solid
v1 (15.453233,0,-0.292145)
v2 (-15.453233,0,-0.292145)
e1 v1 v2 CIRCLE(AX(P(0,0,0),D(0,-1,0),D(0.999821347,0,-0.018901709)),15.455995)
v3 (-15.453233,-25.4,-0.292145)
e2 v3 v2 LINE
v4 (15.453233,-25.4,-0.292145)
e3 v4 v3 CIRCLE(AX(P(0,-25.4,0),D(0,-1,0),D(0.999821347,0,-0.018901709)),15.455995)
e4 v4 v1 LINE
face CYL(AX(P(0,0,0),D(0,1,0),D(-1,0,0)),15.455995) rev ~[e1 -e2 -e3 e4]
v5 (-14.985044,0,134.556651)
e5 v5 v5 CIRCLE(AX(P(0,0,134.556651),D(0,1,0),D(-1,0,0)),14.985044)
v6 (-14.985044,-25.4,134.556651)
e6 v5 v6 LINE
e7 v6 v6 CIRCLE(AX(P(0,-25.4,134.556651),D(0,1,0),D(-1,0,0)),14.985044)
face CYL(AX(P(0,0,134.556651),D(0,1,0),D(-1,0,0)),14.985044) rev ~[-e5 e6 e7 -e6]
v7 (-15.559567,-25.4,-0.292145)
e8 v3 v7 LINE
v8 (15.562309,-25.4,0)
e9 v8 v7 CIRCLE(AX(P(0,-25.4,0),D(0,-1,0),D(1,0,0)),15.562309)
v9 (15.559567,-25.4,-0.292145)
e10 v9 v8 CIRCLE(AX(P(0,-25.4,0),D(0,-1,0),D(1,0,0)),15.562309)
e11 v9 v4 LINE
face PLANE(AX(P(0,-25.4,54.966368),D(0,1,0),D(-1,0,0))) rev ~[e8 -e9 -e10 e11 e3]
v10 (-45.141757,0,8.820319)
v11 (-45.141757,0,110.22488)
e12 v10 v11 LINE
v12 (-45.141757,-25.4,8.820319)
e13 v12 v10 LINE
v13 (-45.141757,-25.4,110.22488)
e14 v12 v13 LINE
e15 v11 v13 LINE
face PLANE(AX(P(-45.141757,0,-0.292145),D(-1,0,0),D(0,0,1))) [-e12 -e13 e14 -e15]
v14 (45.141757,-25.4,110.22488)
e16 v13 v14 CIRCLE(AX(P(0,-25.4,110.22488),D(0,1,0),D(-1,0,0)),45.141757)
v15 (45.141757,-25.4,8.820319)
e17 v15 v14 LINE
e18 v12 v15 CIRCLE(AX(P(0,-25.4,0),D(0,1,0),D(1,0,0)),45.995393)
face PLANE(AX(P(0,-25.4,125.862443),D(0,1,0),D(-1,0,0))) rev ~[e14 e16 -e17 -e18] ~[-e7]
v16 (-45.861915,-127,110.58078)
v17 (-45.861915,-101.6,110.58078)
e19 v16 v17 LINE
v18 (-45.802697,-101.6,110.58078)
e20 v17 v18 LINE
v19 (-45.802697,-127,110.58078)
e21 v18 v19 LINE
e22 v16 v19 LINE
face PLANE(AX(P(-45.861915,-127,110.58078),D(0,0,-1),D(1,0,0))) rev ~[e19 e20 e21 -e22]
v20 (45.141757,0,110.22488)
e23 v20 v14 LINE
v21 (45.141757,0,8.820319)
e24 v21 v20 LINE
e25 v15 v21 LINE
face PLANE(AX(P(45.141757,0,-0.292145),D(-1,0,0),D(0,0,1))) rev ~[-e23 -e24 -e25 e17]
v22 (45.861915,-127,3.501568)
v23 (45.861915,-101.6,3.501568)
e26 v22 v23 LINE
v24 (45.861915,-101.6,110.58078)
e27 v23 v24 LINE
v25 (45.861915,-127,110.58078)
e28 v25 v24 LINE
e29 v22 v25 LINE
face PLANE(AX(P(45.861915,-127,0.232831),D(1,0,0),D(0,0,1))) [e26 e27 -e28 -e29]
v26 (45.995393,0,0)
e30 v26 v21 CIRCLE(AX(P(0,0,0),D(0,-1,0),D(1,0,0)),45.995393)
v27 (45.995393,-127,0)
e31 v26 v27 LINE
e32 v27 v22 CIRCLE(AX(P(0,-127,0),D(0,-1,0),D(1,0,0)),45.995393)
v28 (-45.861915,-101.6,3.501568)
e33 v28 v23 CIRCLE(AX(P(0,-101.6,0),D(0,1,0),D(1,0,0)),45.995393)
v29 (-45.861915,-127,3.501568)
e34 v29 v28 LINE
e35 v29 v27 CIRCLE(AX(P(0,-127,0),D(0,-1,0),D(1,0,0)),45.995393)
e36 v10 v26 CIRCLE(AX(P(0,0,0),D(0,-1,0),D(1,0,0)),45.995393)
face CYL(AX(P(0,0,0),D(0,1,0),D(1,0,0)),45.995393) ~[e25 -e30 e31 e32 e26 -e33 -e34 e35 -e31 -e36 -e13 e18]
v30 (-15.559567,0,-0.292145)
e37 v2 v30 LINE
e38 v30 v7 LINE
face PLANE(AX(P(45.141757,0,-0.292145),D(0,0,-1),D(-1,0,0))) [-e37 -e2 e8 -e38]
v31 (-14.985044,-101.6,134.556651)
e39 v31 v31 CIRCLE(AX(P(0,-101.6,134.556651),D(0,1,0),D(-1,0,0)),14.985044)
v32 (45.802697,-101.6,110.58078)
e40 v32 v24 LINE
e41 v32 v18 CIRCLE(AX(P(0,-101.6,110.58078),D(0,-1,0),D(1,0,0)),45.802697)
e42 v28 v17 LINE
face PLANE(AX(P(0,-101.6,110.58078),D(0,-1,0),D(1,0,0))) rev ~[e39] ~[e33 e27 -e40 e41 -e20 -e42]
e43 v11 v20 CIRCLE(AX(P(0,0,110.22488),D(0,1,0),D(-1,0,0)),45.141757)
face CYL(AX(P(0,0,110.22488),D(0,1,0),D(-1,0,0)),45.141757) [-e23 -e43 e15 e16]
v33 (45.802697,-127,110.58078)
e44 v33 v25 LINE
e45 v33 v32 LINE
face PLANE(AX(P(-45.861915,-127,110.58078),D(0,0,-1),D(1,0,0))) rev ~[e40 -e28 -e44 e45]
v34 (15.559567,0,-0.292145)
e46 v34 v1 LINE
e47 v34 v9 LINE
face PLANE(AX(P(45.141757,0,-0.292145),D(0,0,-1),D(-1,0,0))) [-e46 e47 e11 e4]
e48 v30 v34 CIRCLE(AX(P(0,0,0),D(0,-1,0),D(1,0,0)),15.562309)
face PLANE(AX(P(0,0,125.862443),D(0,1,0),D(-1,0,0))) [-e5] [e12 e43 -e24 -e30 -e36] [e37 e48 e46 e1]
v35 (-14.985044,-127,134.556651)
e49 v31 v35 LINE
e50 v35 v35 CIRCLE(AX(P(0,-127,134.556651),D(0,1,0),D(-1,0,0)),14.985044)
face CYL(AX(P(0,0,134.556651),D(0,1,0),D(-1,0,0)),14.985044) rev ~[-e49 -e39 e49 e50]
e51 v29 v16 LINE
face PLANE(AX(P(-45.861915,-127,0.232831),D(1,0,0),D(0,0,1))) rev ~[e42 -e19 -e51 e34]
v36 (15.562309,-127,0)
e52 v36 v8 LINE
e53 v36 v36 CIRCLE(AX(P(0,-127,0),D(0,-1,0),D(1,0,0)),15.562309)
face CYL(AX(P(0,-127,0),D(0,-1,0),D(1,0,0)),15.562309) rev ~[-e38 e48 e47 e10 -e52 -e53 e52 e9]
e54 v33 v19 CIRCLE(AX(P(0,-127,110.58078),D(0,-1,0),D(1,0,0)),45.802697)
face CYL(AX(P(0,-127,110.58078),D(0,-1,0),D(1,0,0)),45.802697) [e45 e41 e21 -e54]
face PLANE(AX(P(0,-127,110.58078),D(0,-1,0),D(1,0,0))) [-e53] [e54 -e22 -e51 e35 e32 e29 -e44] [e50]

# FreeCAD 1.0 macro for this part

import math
import FreeCAD as App
import Part
import Sketcher


def add_polygon(sketch, points):
    """Adds a closed chain of lines whose ends are joined by coincident constraints."""
    first, n = sketch.GeometryCount, len(points)
    for a, b in zip(points, points[1:] + points[:1]):
        sketch.addGeometry(Part.LineSegment(App.Vector(*a, 0), App.Vector(*b, 0)), False)
    for i in range(n):
        sketch.addConstraint(Sketcher.Constraint("Coincident", first + i, 2, first + (i + 1) % n, 1))

doc = App.newDocument("Part")
params = doc.addObject("Spreadsheet::Sheet", "Params")
for row, (alias, value) in enumerate([
    ("pad1_length", "5 in"),
    ("pocket1_length", "5 in"),
    ("pad2_length", "1 in"),
    ("pocket2_length", "5 in"),
    ("pad3_length", "1 in"),
    ("pad4_length", "1 in"),
    ("pocket3_length", "5 in"),
    ("pad5_length", "1 in"),
    ("pocket4_length", "5 in"),
], start=1):
    params.set(f"A{row}", alias)
    params.set(f"B{row}", "=" + value)
    params.setAlias(f"B{row}", alias)

body = doc.addObject("PartDesign::Body", "Body")

sketch1 = doc.addObject("Sketcher::SketchObject", "Sketch")
body.addObject(sketch1)
sketch1.AttachmentSupport = (doc.XZ_Plane, [""])
sketch1.MapMode = "FlatFace"
sketch1.addGeometry(Part.Circle(App.Vector(0, 0, 0), App.Vector(0, 0, 1), 46), False)
sketch1.addConstraint(Sketcher.Constraint("Coincident", 0, 3, -1, 1))
sketch1.addConstraint(Sketcher.Constraint("Diameter", 0, 91.990787))
pad1 = doc.addObject("PartDesign::Pad", "Pad")
body.addObject(pad1)
pad1.Profile = sketch1
pad1.setExpression("Length", "Params.pad1_length")

sketch2 = doc.addObject("Sketcher::SketchObject", "Sketch001")
body.addObject(sketch2)
sketch2.AttachmentSupport = (doc.XZ_Plane, [""])
sketch2.MapMode = "FlatFace"
sketch2.addGeometry(Part.Circle(App.Vector(0, 0, 0), App.Vector(0, 0, 1), 16), False)
sketch2.addConstraint(Sketcher.Constraint("Coincident", 0, 3, -1, 1))
sketch2.addConstraint(Sketcher.Constraint("Diameter", 0, 31.025354))
pocket1 = doc.addObject("PartDesign::Pocket", "Pocket")
body.addObject(pocket1)
pocket1.Profile = sketch2
pocket1.setExpression("Length", "Params.pocket1_length")
pocket1.Reversed = True

sketch3 = doc.addObject("Sketcher::SketchObject", "Sketch002")
body.addObject(sketch3)
sketch3.AttachmentSupport = (doc.XZ_Plane, [""])
sketch3.MapMode = "FlatFace"
sketch3.AttachmentOffset = App.Placement(App.Vector(0, 0, 5 * 25.4), App.Rotation())
add_polygon(sketch3, [(-46, 111), (-46, 0), (46, 0), (46, 111)])
sketch3.addConstraint(Sketcher.Constraint("Vertical", 0))
sketch3.addConstraint(Sketcher.Constraint("Horizontal", 1))
sketch3.addConstraint(Sketcher.Constraint("Vertical", 2))
sketch3.addConstraint(Sketcher.Constraint("Horizontal", 3))
sketch3.addConstraint(Sketcher.Constraint("DistanceX", 1, 1, 1, 2, 91.72383))
sketch3.addConstraint(Sketcher.Constraint("DistanceY", 0, 2, 0, 1, 110.347949))
sketch3.addConstraint(Sketcher.Constraint("DistanceY", -1, 1, 0, 2, 0.232831))
sketch3.addConstraint(Sketcher.Constraint("DistanceX", 0, 2, -1, 1, 45.861915))
pad2 = doc.addObject("PartDesign::Pad", "Pad001")
body.addObject(pad2)
pad2.Profile = sketch3
pad2.setExpression("Length", "Params.pad2_length")
pad2.Reversed = True

sketch4 = doc.addObject("Sketcher::SketchObject", "Sketch003")
body.addObject(sketch4)
sketch4.AttachmentSupport = (doc.XZ_Plane, [""])
sketch4.MapMode = "FlatFace"
sketch4.AttachmentOffset = App.Placement(App.Vector(0, 0, 5 * 25.4), App.Rotation())
sketch4.addGeometry(Part.Circle(App.Vector(0, 0, 0), App.Vector(0, 0, 1), 16), False)
sketch4.addConstraint(Sketcher.Constraint("Coincident", 0, 3, -1, 1))
sketch4.addConstraint(Sketcher.Constraint("Diameter", 0, 31.124618))
pocket2 = doc.addObject("PartDesign::Pocket", "Pocket001")
body.addObject(pocket2)
pocket2.Profile = sketch4
pocket2.setExpression("Length", "Params.pocket2_length")

sketch5 = doc.addObject("Sketcher::SketchObject", "Sketch004")
body.addObject(sketch5)
sketch5.AttachmentSupport = (doc.XZ_Plane, [""])
sketch5.MapMode = "FlatFace"
sketch5.AttachmentOffset = App.Placement(App.Vector(0, 0, 5 * 25.4), App.Rotation())
sketch5.addGeometry(Part.Circle(App.Vector(0, 111, 0), App.Vector(0, 0, 1), 46), False)
sketch5.addConstraint(Sketcher.Constraint("PointOnObject", 0, 3, -2))
sketch5.addConstraint(Sketcher.Constraint("Diameter", 0, 91.605394))
sketch5.addConstraint(Sketcher.Constraint("DistanceY", -1, 1, 0, 3, 110.58078))
pad3 = doc.addObject("PartDesign::Pad", "Pad002")
body.addObject(pad3)
pad3.Profile = sketch5
pad3.setExpression("Length", "Params.pad3_length")
pad3.Reversed = True

sketch6 = doc.addObject("Sketcher::SketchObject", "Sketch005")
body.addObject(sketch6)
sketch6.AttachmentSupport = (doc.XZ_Plane, [""])
sketch6.MapMode = "FlatFace"
add_polygon(sketch6, [(45, 110), (45, 0), (-45, 0), (-45, 110)])
sketch6.addConstraint(Sketcher.Constraint("Vertical", 0))
sketch6.addConstraint(Sketcher.Constraint("Horizontal", 1))
sketch6.addConstraint(Sketcher.Constraint("Vertical", 2))
sketch6.addConstraint(Sketcher.Constraint("Horizontal", 3))
sketch6.addConstraint(Sketcher.Constraint("DistanceX", 1, 2, 1, 1, 90.283513))
sketch6.addConstraint(Sketcher.Constraint("DistanceY", 0, 2, 0, 1, 110.517025))
sketch6.addConstraint(Sketcher.Constraint("DistanceY", -1, 1, 2, 2, 110.22488))
sketch6.addConstraint(Sketcher.Constraint("DistanceX", -1, 1, 0, 2, 45.141757))
pad4 = doc.addObject("PartDesign::Pad", "Pad003")
body.addObject(pad4)
pad4.Profile = sketch6
pad4.setExpression("Length", "Params.pad4_length")

sketch7 = doc.addObject("Sketcher::SketchObject", "Sketch006")
body.addObject(sketch7)
sketch7.AttachmentSupport = (doc.XZ_Plane, [""])
sketch7.MapMode = "FlatFace"
sketch7.addGeometry(Part.Circle(App.Vector(0, 0, 0), App.Vector(0, 0, 1), 15), False)
sketch7.addConstraint(Sketcher.Constraint("Coincident", 0, 3, -1, 1))
sketch7.addConstraint(Sketcher.Constraint("Diameter", 0, 30.911989))
pocket3 = doc.addObject("PartDesign::Pocket", "Pocket002")
body.addObject(pocket3)
pocket3.Profile = sketch7
pocket3.setExpression("Length", "Params.pocket3_length")
pocket3.Reversed = True

sketch8 = doc.addObject("Sketcher::SketchObject", "Sketch007")
body.addObject(sketch8)
sketch8.AttachmentSupport = (doc.XZ_Plane, [""])
sketch8.MapMode = "FlatFace"
sketch8.addGeometry(Part.LineSegment(App.Vector(45, 110, 0), App.Vector(-45, 110, 0)), False)
sketch8.addGeometry(Part.ArcOfCircle(Part.Circle(App.Vector(0, 110, 0), App.Vector(0, 0, 1), 45), math.radians(0), math.radians(180)), False)
sketch8.addConstraint(Sketcher.Constraint("Coincident", 0, 1, 1, 1))
sketch8.addConstraint(Sketcher.Constraint("Coincident", 1, 2, 0, 2))
sketch8.addConstraint(Sketcher.Constraint("Horizontal", 0))
sketch8.addConstraint(Sketcher.Constraint("PointOnObject", 1, 3, -2))
sketch8.addConstraint(Sketcher.Constraint("Horizontal", 1, 3, 0, 1))
sketch8.addConstraint(Sketcher.Constraint("Radius", 1, 45.141757))
sketch8.addConstraint(Sketcher.Constraint("DistanceY", -1, 1, 1, 3, 110.22488))
pad5 = doc.addObject("PartDesign::Pad", "Pad004")
body.addObject(pad5)
pad5.Profile = sketch8
pad5.setExpression("Length", "Params.pad5_length")

sketch9 = doc.addObject("Sketcher::SketchObject", "Sketch008")
body.addObject(sketch9)
sketch9.AttachmentSupport = (doc.XZ_Plane, [""])
sketch9.MapMode = "FlatFace"
sketch9.addGeometry(Part.Circle(App.Vector(0, 135, 0), App.Vector(0, 0, 1), 15), False)
sketch9.addConstraint(Sketcher.Constraint("PointOnObject", 0, 3, -2))
sketch9.addConstraint(Sketcher.Constraint("Diameter", 0, 29.970088))
sketch9.addConstraint(Sketcher.Constraint("DistanceY", -1, 1, 0, 3, 134.556651))
pocket4 = doc.addObject("PartDesign::Pocket", "Pocket003")
body.addObject(pocket4)
pocket4.Profile = sketch9
pocket4.setExpression("Length", "Params.pocket4_length")
pocket4.Reversed = True

doc.recompute()
